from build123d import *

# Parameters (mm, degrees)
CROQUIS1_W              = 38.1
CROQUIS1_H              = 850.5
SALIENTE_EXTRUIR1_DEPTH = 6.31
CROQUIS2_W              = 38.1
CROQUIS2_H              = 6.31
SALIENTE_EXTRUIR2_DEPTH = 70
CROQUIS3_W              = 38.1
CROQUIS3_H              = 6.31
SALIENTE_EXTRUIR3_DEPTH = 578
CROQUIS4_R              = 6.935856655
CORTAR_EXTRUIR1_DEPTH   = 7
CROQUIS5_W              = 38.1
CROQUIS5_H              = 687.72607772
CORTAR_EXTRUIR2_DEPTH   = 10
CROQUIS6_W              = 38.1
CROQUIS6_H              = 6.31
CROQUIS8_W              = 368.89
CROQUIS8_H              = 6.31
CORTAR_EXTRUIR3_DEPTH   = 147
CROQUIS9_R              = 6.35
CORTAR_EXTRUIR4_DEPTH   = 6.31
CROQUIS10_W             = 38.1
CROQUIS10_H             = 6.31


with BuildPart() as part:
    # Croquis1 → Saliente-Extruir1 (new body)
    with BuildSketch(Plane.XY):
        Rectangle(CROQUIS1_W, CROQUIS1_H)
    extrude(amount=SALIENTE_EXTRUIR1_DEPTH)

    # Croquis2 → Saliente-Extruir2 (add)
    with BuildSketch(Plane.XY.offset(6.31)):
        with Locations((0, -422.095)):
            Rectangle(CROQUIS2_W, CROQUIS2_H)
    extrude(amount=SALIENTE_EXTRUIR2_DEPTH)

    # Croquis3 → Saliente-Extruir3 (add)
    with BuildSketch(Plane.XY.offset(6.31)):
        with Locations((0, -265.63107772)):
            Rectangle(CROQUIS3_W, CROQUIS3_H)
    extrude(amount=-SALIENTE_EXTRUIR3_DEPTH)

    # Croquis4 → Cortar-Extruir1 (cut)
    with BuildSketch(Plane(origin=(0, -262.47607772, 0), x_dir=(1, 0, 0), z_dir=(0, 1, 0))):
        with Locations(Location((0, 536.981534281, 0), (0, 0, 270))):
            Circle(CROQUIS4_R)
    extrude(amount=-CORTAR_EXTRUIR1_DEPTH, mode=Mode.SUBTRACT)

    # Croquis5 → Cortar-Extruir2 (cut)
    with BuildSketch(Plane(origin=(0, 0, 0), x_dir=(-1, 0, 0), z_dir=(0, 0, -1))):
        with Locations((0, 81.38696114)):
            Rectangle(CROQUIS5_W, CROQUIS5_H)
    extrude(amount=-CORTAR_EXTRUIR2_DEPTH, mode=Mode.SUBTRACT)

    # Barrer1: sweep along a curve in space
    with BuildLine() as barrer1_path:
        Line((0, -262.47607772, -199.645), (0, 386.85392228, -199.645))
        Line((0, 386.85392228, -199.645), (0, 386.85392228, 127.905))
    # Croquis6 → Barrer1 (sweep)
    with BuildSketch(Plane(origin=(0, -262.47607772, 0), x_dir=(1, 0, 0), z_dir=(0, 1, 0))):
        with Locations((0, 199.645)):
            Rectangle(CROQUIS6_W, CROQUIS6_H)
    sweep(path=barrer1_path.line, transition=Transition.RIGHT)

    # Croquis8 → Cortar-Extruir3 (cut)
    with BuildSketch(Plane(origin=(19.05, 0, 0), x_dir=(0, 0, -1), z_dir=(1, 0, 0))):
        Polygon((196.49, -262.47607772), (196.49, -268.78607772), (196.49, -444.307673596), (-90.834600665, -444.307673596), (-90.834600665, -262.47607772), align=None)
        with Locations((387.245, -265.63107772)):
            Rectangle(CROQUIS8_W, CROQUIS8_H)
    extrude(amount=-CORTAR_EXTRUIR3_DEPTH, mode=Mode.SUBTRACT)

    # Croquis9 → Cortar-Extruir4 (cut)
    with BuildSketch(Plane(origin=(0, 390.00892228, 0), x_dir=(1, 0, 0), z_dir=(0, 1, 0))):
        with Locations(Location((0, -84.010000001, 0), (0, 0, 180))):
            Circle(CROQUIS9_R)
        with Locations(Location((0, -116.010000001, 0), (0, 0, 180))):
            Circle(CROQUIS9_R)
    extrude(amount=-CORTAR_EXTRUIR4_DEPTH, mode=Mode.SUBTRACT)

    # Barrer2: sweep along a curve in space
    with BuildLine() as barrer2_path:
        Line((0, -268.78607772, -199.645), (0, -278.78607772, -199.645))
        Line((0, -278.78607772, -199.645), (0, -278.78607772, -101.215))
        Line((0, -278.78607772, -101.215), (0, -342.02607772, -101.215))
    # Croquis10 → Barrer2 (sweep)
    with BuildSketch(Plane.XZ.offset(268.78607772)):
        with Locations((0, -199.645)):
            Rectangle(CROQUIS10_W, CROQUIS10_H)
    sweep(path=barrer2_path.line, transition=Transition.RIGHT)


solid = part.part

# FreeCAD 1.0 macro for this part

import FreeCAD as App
import Part
import Sketcher

V = App.Vector
Q = App.Units.Quantity


def add_polygon(sketch, points):
    """Adds a closed chain of lines whose ends are joined by coincident constraints."""
    first, n = sketch.GeometryCount, len(points)
    for a, b in zip(points, points[1:] + points[:1]):
        sketch.addGeometry(Part.LineSegment(App.Vector(*a, 0), App.Vector(*b, 0)), False)
    for i in range(n):
        sketch.addConstraint(Sketcher.Constraint("Coincident", first + i, 2, first + (i + 1) % n, 1))

doc = App.newDocument("Part")
body = doc.addObject("PartDesign::Body", "Body")

# Sketch on XY plane
sketch1 = doc.addObject("Sketcher::SketchObject", "Sketch")
body.addObject(sketch1)
sketch1.AttachmentSupport = (doc.XY_Plane, [""])
sketch1.MapMode = "FlatFace"
add_polygon(sketch1, [(-19, 425), (-19, -425), (19, -425), (19, 425)])  # lines 0-3
sketch1.addConstraint([
    Sketcher.Constraint("Vertical", 0),
    Sketcher.Constraint("Horizontal", 1),
    Sketcher.Constraint("Vertical", 2),
    Sketcher.Constraint("Horizontal", 3),
    Sketcher.Constraint("Symmetric", 0, 2, 2, 2, -1, 1),
    Sketcher.Constraint("DistanceX", 1, 1, 1, 2, Q("38.1 mm")),
    Sketcher.Constraint("DistanceY", 0, 2, 0, 1, Q("850.5 mm")),
])
pad1 = doc.addObject("PartDesign::Pad", "Pad")
body.addObject(pad1)
pad1.Profile = sketch1
pad1.Length = 6.31

# Sketch on XY plane
sketch2 = doc.addObject("Sketcher::SketchObject", "Sketch001")
body.addObject(sketch2)
sketch2.AttachmentSupport = (doc.XY_Plane, [""])
sketch2.MapMode = "FlatFace"
sketch2.AttachmentOffset = App.Placement(V(0, 0, 6.31), App.Rotation())
add_polygon(sketch2, [(-19, -419), (-19, -425), (19, -425), (19, -419)])  # lines 0-3
sketch2.addConstraint([
    Sketcher.Constraint("Vertical", 0),
    Sketcher.Constraint("Horizontal", 1),
    Sketcher.Constraint("Vertical", 2),
    Sketcher.Constraint("Horizontal", 3),
    Sketcher.Constraint("DistanceX", 1, 1, 1, 2, Q("38.1 mm")),
    Sketcher.Constraint("DistanceY", 0, 2, 0, 1, Q("6.31 mm")),
    Sketcher.Constraint("DistanceX", 0, 2, -1, 1, Q("19.05 mm")),
    Sketcher.Constraint("DistanceY", 0, 2, -1, 1, Q("425.25 mm")),
])
pad2 = doc.addObject("PartDesign::Pad", "Pad001")
body.addObject(pad2)
pad2.Profile = sketch2
pad2.Length = 70

# Sketch on XY plane
sketch3 = doc.addObject("Sketcher::SketchObject", "Sketch002")
body.addObject(sketch3)
sketch3.AttachmentSupport = (doc.XY_Plane, [""])
sketch3.MapMode = "FlatFace"
sketch3.AttachmentOffset = App.Placement(V(0, 0, 6.31), App.Rotation())
add_polygon(sketch3, [(-19, -262), (-19, -269), (19, -269), (19, -262)])  # lines 0-3
sketch3.addConstraint([
    Sketcher.Constraint("Vertical", 0),
    Sketcher.Constraint("Horizontal", 1),
    Sketcher.Constraint("Vertical", 2),
    Sketcher.Constraint("Horizontal", 3),
    Sketcher.Constraint("DistanceX", 1, 1, 1, 2, Q("38.1 mm")),
    Sketcher.Constraint("DistanceY", 0, 2, 0, 1, Q("6.31 mm")),
    Sketcher.Constraint("DistanceX", 0, 2, -1, 1, Q("19.05 mm")),
    Sketcher.Constraint("DistanceY", 0, 2, -1, 1, Q("268.786078 mm")),
])
pad3 = doc.addObject("PartDesign::Pad", "Pad002")
body.addObject(pad3)
pad3.Profile = sketch3
pad3.Length = 578
pad3.Reversed = True

# Sketch on XZ plane
sketch4 = doc.addObject("Sketcher::SketchObject", "Sketch003")
body.addObject(sketch4)
sketch4.AttachmentSupport = (doc.XZ_Plane, [""])
sketch4.MapMode = "FlatFace"
sketch4.AttachmentOffset = App.Placement(V(0, 0, 262.476078), App.Rotation())
sketch4.addGeometry(Part.Circle(V(0, -537, 0), V(0, 0, 1), 7), False)
sketch4.addConstraint([
    Sketcher.Constraint("PointOnObject", 0, 3, -2),
    Sketcher.Constraint("Diameter", 0, Q("13.871713 mm")),
    Sketcher.Constraint("DistanceY", 0, 3, -1, 1, Q("536.981534 mm")),
])
pocket1 = doc.addObject("PartDesign::Pocket", "Pocket")
body.addObject(pocket1)
pocket1.Profile = sketch4
pocket1.Length = 7
pocket1.Reversed = True

# Sketch on XY plane
sketch5 = doc.addObject("Sketcher::SketchObject", "Sketch004")
body.addObject(sketch5)
sketch5.AttachmentSupport = (doc.XY_Plane, [""])
sketch5.MapMode = "FlatFace"
add_polygon(sketch5, [(19, 425), (19, -262), (-19, -262), (-19, 425)])  # lines 0-3
sketch5.addConstraint([
    Sketcher.Constraint("Vertical", 0),
    Sketcher.Constraint("Horizontal", 1),
    Sketcher.Constraint("Vertical", 2),
    Sketcher.Constraint("Horizontal", 3),
    Sketcher.Constraint("DistanceX", 1, 2, 1, 1, Q("38.1 mm")),
    Sketcher.Constraint("DistanceX", -1, 1, 0, 2, Q("19.05 mm")),
    Sketcher.Constraint("DistanceY", -1, 1, 2, 2, Q("425.25 mm")),
    Sketcher.Constraint("DistanceY", 0, 2, 0, 1, Q("687.726078 mm")),
])
pocket2 = doc.addObject("PartDesign::Pocket", "Pocket001")
body.addObject(pocket2)
pocket2.Profile = sketch5
pocket2.Length = 10
pocket2.Reversed = True

# Sketch on XZ plane
sketch6 = doc.addObject("Sketcher::SketchObject", "Sketch005")
body.addObject(sketch6)
sketch6.AttachmentSupport = (doc.XZ_Plane, [""])
sketch6.MapMode = "FlatFace"
sketch6.AttachmentOffset = App.Placement(V(0, 0, 262.476078), App.Rotation())
add_polygon(sketch6, [(-19, -203), (-19, -196), (19, -196), (19, -203)])  # lines 0-3
sketch6.addConstraint([
    Sketcher.Constraint("Vertical", 0),
    Sketcher.Constraint("Horizontal", 1),
    Sketcher.Constraint("Vertical", 2),
    Sketcher.Constraint("Horizontal", 3),
    Sketcher.Constraint("DistanceX", 1, 1, 1, 2, Q("38.1 mm")),
    Sketcher.Constraint("DistanceY", 0, 1, 0, 2, Q("6.31 mm")),
    Sketcher.Constraint("DistanceY", 2, 2, -1, 1, Q("202.8 mm")),
    Sketcher.Constraint("DistanceX", 0, 2, -1, 1, Q("19.05 mm")),
])

# Sketch on YZ plane
sketch7 = doc.addObject("Sketcher::SketchObject", "Sketch006")
body.addObject(sketch7)
sketch7.AttachmentSupport = (doc.YZ_Plane, [""])
sketch7.MapMode = "FlatFace"
sketch7.addGeometry([
    Part.LineSegment(V(-262, -200, 0), V(387, -200, 0)),
    Part.LineSegment(V(387, -200, 0), V(387, 128, 0)),
], False)
sketch7.addConstraint([
    Sketcher.Constraint("Coincident", 0, 2, 1, 1),
    Sketcher.Constraint("Horizontal", 0),
    Sketcher.Constraint("Vertical", 1),
    Sketcher.Constraint("DistanceX", 0, 1, 0, 2, Q("649.33 mm")),
    Sketcher.Constraint("DistanceY", 1, 1, 1, 2, Q("327.55 mm")),
    Sketcher.Constraint("DistanceY", 0, 1, -1, 1, Q("199.645 mm")),
    Sketcher.Constraint("DistanceX", 0, 1, -1, 1, Q("262.476078 mm")),
])
doc.recompute()

additivepipe = doc.addObject("PartDesign::AdditivePipe", "AdditivePipe")
body.addObject(additivepipe)
additivepipe.Profile = sketch6
additivepipe.Spine = (sketch7, ["Edge1", "Edge2"])
additivepipe.Transition = "Right corner"

# Sketch on YZ plane
sketch8 = doc.addObject("Sketcher::SketchObject", "Sketch007")
body.addObject(sketch8)
sketch8.AttachmentSupport = (doc.YZ_Plane, [""])
sketch8.MapMode = "FlatFace"
sketch8.AttachmentOffset = App.Placement(V(0, 0, 19.05), App.Rotation())
add_polygon(sketch8, [(-444, -196), (-262, -196), (-262, 91), (-444, 91)])  # lines 0-3
add_polygon(sketch8, [(-262, -203), (-269, -203), (-269, -572), (-262, -572)])  # lines 4-7
sketch8.addConstraint([
    Sketcher.Constraint("Horizontal", 0),
    Sketcher.Constraint("Vertical", 1),
    Sketcher.Constraint("Horizontal", 2),
    Sketcher.Constraint("Vertical", 3),
    Sketcher.Constraint("Horizontal", 4),
    Sketcher.Constraint("Vertical", 5),
    Sketcher.Constraint("Horizontal", 6),
    Sketcher.Constraint("Vertical", 7),
    Sketcher.Constraint("Vertical", 1, 2, 6, 2),
    Sketcher.Constraint("DistanceX", 4, 2, 4, 1, Q("6.31 mm")),
    Sketcher.Constraint("DistanceY", 5, 2, 5, 1, Q("368.89 mm")),
    Sketcher.Constraint("DistanceY", 4, 2, -1, 1, Q("202.8 mm")),
    Sketcher.Constraint("DistanceY", 5, 2, 0, 2, Q("375.2 mm")),
    Sketcher.Constraint("DistanceY", 1, 1, 1, 2, Q("287.324601 mm")),
    Sketcher.Constraint("DistanceX", 0, 1, 0, 2, Q("181.831596 mm")),
    Sketcher.Constraint("DistanceX", 0, 2, -1, 1, Q("262.476078 mm")),
])
pocket3 = doc.addObject("PartDesign::Pocket", "Pocket002")
body.addObject(pocket3)
pocket3.Profile = sketch8
pocket3.Length = 147

# Sketch on XZ plane
sketch9 = doc.addObject("Sketcher::SketchObject", "Sketch008")
body.addObject(sketch9)
sketch9.AttachmentSupport = (doc.XZ_Plane, [""])
sketch9.MapMode = "FlatFace"
sketch9.AttachmentOffset = App.Placement(V(0, 0, -390.008922), App.Rotation())
sketch9.addGeometry([
    Part.Circle(V(0, 84, 0), V(0, 0, 1), 6),
    Part.Circle(V(0, 116, 0), V(0, 0, 1), 6),
], False)
sketch9.addConstraint([
    Sketcher.Constraint("Equal", 0, 1),
    Sketcher.Constraint("PointOnObject", 0, 3, -2),
    Sketcher.Constraint("PointOnObject", 1, 3, -2),
    Sketcher.Constraint("Diameter", 0, Q("12.7 mm")),
    Sketcher.Constraint("DistanceY", 0, 3, 1, 3, Q("32 mm")),
    Sketcher.Constraint("DistanceY", -1, 1, 0, 3, Q("84.01 mm")),
])
pocket4 = doc.addObject("PartDesign::Pocket", "Pocket003")
body.addObject(pocket4)
pocket4.Profile = sketch9
pocket4.Length = 6.31
pocket4.Reversed = True

# Sketch on XZ plane
sketch10 = doc.addObject("Sketcher::SketchObject", "Sketch009")
body.addObject(sketch10)
sketch10.AttachmentSupport = (doc.XZ_Plane, [""])
sketch10.MapMode = "FlatFace"
sketch10.AttachmentOffset = App.Placement(V(0, 0, 268.786078), App.Rotation())
add_polygon(sketch10, [(-19, -196), (-19, -203), (19, -203), (19, -196)])  # lines 0-3
sketch10.addConstraint([
    Sketcher.Constraint("Vertical", 0),
    Sketcher.Constraint("Horizontal", 1),
    Sketcher.Constraint("Vertical", 2),
    Sketcher.Constraint("Horizontal", 3),
    Sketcher.Constraint("DistanceX", 1, 1, 1, 2, Q("38.1 mm")),
    Sketcher.Constraint("DistanceY", 0, 2, 0, 1, Q("6.31 mm")),
    Sketcher.Constraint("DistanceY", 0, 2, -1, 1, Q("202.8 mm")),
    Sketcher.Constraint("DistanceX", 0, 2, -1, 1, Q("19.05 mm")),
])

# Sketch on YZ plane
sketch11 = doc.addObject("Sketcher::SketchObject", "Sketch010")
body.addObject(sketch11)
sketch11.AttachmentSupport = (doc.YZ_Plane, [""])
sketch11.MapMode = "FlatFace"
sketch11.addGeometry([
    Part.LineSegment(V(-269, -200, 0), V(-279, -200, 0)),
    Part.LineSegment(V(-279, -200, 0), V(-279, -101, 0)),
    Part.LineSegment(V(-279, -101, 0), V(-342, -101, 0)),
], False)
sketch11.addConstraint([
    Sketcher.Constraint("Coincident", 0, 2, 1, 1),
    Sketcher.Constraint("Coincident", 1, 2, 2, 1),
    Sketcher.Constraint("Horizontal", 0),
    Sketcher.Constraint("Vertical", 1),
    Sketcher.Constraint("Horizontal", 2),
    Sketcher.Constraint("DistanceX", 0, 2, 0, 1, Q("10 mm")),
    Sketcher.Constraint("DistanceX", 2, 2, 2, 1, Q("63.24 mm")),
    Sketcher.Constraint("DistanceY", 1, 1, 1, 2, Q("98.43 mm")),
    Sketcher.Constraint("DistanceY", 0, 1, -1, 1, Q("199.645 mm")),
    Sketcher.Constraint("DistanceX", 0, 1, -1, 1, Q("268.786078 mm")),
])
doc.recompute()

additivepipe2 = doc.addObject("PartDesign::AdditivePipe", "AdditivePipe001")
body.addObject(additivepipe2)
additivepipe2.Profile = sketch10
additivepipe2.Spine = (sketch11, ["Edge1", "Edge2", "Edge3"])
additivepipe2.Transition = "Right corner"

doc.recompute()
